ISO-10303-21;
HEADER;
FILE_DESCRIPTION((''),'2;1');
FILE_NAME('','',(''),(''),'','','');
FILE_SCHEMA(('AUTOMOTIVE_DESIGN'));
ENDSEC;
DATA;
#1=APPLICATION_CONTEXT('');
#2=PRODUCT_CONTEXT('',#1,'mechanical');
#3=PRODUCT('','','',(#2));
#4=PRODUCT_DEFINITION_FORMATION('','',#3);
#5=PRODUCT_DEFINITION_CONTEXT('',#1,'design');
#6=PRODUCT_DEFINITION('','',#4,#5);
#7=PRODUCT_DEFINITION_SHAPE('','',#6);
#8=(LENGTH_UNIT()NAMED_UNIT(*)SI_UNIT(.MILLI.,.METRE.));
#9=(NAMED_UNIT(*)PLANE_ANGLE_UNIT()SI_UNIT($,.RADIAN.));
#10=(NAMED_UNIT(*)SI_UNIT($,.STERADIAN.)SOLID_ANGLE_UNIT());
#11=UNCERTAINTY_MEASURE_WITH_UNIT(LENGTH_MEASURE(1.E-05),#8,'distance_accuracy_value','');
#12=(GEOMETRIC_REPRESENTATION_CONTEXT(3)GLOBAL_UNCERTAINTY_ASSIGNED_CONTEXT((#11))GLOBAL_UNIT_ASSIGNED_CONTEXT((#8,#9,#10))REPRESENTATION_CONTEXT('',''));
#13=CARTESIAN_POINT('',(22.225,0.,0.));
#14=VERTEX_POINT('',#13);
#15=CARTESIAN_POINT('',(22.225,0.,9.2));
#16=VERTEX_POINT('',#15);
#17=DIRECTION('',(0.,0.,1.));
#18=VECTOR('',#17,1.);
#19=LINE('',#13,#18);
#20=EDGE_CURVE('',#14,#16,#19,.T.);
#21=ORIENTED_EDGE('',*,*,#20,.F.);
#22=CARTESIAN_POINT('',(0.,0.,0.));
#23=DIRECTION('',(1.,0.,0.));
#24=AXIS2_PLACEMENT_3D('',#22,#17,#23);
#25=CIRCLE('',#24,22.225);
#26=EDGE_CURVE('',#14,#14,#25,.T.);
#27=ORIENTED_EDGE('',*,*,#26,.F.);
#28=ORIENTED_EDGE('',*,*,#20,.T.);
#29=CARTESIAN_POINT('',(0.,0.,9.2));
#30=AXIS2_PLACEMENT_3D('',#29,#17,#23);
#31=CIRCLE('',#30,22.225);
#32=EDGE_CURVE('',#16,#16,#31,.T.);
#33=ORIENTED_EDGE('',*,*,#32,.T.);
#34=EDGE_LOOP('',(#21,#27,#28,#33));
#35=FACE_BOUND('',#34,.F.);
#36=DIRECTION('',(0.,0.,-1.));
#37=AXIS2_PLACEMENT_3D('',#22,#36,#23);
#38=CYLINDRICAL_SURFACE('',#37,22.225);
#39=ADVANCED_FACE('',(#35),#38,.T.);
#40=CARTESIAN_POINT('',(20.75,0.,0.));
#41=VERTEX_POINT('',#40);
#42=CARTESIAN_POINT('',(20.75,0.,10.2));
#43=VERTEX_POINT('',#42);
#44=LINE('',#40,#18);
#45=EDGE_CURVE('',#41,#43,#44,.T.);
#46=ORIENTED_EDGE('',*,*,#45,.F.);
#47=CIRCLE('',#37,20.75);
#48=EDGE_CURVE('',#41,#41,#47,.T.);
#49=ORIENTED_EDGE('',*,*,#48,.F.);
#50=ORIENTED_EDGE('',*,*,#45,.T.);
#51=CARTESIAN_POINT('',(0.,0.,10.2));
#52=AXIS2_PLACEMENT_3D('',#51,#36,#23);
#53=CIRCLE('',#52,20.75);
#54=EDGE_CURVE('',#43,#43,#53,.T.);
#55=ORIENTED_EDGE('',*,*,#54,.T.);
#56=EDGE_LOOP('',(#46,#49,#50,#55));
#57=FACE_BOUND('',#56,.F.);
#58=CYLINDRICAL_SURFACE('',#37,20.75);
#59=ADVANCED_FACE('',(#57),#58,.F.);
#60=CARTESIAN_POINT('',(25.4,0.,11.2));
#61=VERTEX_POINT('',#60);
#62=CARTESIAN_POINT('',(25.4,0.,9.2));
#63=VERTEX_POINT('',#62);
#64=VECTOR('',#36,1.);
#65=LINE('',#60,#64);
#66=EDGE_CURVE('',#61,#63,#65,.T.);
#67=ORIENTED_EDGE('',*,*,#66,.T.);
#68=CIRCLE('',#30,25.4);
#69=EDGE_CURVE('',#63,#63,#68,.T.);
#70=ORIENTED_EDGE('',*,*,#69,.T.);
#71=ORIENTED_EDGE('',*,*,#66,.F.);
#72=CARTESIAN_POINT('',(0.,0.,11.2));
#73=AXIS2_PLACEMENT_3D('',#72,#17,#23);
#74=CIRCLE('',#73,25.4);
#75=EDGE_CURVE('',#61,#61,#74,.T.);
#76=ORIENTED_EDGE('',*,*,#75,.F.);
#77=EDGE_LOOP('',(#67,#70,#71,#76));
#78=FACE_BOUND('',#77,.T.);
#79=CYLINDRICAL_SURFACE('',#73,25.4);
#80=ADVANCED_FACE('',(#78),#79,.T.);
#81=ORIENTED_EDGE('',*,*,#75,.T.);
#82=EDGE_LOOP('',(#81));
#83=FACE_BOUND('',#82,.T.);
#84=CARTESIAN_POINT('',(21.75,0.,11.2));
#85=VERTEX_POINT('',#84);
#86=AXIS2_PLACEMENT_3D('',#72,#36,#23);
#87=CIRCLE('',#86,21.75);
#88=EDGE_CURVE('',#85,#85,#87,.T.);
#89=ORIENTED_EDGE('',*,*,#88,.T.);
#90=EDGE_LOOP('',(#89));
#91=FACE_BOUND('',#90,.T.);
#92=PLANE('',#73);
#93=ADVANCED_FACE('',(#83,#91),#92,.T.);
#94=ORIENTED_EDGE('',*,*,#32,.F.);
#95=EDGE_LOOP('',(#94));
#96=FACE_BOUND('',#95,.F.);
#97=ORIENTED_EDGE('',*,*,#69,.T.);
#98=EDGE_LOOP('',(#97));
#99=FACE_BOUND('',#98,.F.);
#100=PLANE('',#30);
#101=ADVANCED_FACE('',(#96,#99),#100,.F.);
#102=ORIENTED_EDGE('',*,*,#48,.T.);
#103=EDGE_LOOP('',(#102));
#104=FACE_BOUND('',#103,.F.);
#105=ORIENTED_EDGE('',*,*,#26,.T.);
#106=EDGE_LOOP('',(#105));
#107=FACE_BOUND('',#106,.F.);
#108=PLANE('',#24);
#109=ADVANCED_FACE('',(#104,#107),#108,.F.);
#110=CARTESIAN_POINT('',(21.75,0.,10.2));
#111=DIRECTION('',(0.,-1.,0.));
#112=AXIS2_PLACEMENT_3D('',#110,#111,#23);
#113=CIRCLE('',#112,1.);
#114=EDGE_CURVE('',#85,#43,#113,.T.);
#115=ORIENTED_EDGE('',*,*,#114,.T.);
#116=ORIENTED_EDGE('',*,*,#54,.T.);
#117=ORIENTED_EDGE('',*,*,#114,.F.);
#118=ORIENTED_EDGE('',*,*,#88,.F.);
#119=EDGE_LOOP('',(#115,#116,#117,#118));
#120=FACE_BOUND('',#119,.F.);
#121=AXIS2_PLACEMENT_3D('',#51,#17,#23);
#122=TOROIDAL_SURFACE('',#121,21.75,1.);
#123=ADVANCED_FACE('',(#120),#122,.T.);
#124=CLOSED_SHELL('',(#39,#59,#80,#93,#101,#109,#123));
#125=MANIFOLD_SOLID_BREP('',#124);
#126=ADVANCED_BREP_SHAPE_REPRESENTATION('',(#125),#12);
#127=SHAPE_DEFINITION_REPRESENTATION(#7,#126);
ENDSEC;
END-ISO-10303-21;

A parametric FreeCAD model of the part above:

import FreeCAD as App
import Part
import Sketcher

V = App.Vector


def edges_at(feature, points):
    """Names of the edges that pass closest to the given points."""
    edges = feature.Shape.Edges
    near = lambda p: min(range(len(edges)), key=lambda i: edges[i].distToShape(Part.Vertex(*p))[0])
    return sorted({f"Edge{near(p) + 1}" for p in points})

doc = App.newDocument("Part")
params = doc.addObject("Spreadsheet::Sheet", "Params")
for row, (alias, value) in enumerate([
    ("sketch1_diameter", "44.45 mm"),
    ("pad1_length", "11.2 mm"),
    ("sketch2_diameter", "50.8 mm"),
    ("sketch2_diameter2", "44.45 mm"),
    ("pad2_length", "2 mm"),
    ("sketch3_diameter", "41.5 mm"),
    ("pocket1_length", "25 mm"),
    ("fillet_radius", "1 mm"),
], start=1):
    params.set(f"A{row}", alias)
    params.set(f"B{row}", "=" + value)
    params.setAlias(f"B{row}", alias)

body = doc.addObject("PartDesign::Body", "Body")

# Sketch on XY plane
sketch1 = doc.addObject("Sketcher::SketchObject", "Sketch")
body.addObject(sketch1)
sketch1.AttachmentSupport = (doc.XY_Plane, [""])
sketch1.MapMode = "FlatFace"
sketch1.addGeometry(Part.Circle(V(0, 0, 0), V(0, 0, 1), 22), False)
sketch1.addConstraint([
    Sketcher.Constraint("Coincident", 0, 3, -1, 1),
    Sketcher.Constraint("Diameter", 0, 44.45),
])
sketch1.setExpression("Constraints[1]", "Params.sketch1_diameter")
pad1 = doc.addObject("PartDesign::Pad", "Pad")
body.addObject(pad1)
pad1.Profile = sketch1
pad1.setExpression("Length", "Params.pad1_length")

# Sketch on XY plane
sketch2 = doc.addObject("Sketcher::SketchObject", "Sketch001")
body.addObject(sketch2)
sketch2.AttachmentSupport = (doc.XY_Plane, [""])
sketch2.MapMode = "FlatFace"
sketch2.AttachmentOffset = App.Placement(V(0, 0, 11.2), App.Rotation())
sketch2.addGeometry([
    Part.Circle(V(0, 0, 0), V(0, 0, 1), 25),
    Part.Circle(V(0, 0, 0), V(0, 0, 1), 22),
], False)
sketch2.addConstraint([
    Sketcher.Constraint("Coincident", 0, 3, -1, 1),
    Sketcher.Constraint("Coincident", 1, 3, -1, 1),
    Sketcher.Constraint("Diameter", 0, 50.8),
    Sketcher.Constraint("Diameter", 1, 44.45),
])
sketch2.setExpression("Constraints[2]", "Params.sketch2_diameter")
sketch2.setExpression("Constraints[3]", "Params.sketch2_diameter2")
pad2 = doc.addObject("PartDesign::Pad", "Pad001")
body.addObject(pad2)
pad2.Profile = sketch2
pad2.setExpression("Length", "Params.pad2_length")
pad2.Reversed = True

# Sketch on XY plane
sketch3 = doc.addObject("Sketcher::SketchObject", "Sketch002")
body.addObject(sketch3)
sketch3.AttachmentSupport = (doc.XY_Plane, [""])
sketch3.MapMode = "FlatFace"
sketch3.addGeometry(Part.Circle(V(0, 0, 0), V(0, 0, 1), 21), False)
sketch3.addConstraint([
    Sketcher.Constraint("Coincident", 0, 3, -1, 1),
    Sketcher.Constraint("Diameter", 0, 41.5),
])
sketch3.setExpression("Constraints[1]", "Params.sketch3_diameter")
pocket1 = doc.addObject("PartDesign::Pocket", "Pocket")
body.addObject(pocket1)
pocket1.Profile = sketch3
pocket1.setExpression("Length", "Params.pocket1_length")
pocket1.Reversed = True
doc.recompute()

fillet = doc.addObject("PartDesign::Fillet", "Fillet")
body.addObject(fillet)
fillet.Base = (pocket1, edges_at(pocket1, [(-20.75, 0, 11.2)]))
fillet.setExpression("Radius", "Params.fillet_radius")

doc.recompute()
